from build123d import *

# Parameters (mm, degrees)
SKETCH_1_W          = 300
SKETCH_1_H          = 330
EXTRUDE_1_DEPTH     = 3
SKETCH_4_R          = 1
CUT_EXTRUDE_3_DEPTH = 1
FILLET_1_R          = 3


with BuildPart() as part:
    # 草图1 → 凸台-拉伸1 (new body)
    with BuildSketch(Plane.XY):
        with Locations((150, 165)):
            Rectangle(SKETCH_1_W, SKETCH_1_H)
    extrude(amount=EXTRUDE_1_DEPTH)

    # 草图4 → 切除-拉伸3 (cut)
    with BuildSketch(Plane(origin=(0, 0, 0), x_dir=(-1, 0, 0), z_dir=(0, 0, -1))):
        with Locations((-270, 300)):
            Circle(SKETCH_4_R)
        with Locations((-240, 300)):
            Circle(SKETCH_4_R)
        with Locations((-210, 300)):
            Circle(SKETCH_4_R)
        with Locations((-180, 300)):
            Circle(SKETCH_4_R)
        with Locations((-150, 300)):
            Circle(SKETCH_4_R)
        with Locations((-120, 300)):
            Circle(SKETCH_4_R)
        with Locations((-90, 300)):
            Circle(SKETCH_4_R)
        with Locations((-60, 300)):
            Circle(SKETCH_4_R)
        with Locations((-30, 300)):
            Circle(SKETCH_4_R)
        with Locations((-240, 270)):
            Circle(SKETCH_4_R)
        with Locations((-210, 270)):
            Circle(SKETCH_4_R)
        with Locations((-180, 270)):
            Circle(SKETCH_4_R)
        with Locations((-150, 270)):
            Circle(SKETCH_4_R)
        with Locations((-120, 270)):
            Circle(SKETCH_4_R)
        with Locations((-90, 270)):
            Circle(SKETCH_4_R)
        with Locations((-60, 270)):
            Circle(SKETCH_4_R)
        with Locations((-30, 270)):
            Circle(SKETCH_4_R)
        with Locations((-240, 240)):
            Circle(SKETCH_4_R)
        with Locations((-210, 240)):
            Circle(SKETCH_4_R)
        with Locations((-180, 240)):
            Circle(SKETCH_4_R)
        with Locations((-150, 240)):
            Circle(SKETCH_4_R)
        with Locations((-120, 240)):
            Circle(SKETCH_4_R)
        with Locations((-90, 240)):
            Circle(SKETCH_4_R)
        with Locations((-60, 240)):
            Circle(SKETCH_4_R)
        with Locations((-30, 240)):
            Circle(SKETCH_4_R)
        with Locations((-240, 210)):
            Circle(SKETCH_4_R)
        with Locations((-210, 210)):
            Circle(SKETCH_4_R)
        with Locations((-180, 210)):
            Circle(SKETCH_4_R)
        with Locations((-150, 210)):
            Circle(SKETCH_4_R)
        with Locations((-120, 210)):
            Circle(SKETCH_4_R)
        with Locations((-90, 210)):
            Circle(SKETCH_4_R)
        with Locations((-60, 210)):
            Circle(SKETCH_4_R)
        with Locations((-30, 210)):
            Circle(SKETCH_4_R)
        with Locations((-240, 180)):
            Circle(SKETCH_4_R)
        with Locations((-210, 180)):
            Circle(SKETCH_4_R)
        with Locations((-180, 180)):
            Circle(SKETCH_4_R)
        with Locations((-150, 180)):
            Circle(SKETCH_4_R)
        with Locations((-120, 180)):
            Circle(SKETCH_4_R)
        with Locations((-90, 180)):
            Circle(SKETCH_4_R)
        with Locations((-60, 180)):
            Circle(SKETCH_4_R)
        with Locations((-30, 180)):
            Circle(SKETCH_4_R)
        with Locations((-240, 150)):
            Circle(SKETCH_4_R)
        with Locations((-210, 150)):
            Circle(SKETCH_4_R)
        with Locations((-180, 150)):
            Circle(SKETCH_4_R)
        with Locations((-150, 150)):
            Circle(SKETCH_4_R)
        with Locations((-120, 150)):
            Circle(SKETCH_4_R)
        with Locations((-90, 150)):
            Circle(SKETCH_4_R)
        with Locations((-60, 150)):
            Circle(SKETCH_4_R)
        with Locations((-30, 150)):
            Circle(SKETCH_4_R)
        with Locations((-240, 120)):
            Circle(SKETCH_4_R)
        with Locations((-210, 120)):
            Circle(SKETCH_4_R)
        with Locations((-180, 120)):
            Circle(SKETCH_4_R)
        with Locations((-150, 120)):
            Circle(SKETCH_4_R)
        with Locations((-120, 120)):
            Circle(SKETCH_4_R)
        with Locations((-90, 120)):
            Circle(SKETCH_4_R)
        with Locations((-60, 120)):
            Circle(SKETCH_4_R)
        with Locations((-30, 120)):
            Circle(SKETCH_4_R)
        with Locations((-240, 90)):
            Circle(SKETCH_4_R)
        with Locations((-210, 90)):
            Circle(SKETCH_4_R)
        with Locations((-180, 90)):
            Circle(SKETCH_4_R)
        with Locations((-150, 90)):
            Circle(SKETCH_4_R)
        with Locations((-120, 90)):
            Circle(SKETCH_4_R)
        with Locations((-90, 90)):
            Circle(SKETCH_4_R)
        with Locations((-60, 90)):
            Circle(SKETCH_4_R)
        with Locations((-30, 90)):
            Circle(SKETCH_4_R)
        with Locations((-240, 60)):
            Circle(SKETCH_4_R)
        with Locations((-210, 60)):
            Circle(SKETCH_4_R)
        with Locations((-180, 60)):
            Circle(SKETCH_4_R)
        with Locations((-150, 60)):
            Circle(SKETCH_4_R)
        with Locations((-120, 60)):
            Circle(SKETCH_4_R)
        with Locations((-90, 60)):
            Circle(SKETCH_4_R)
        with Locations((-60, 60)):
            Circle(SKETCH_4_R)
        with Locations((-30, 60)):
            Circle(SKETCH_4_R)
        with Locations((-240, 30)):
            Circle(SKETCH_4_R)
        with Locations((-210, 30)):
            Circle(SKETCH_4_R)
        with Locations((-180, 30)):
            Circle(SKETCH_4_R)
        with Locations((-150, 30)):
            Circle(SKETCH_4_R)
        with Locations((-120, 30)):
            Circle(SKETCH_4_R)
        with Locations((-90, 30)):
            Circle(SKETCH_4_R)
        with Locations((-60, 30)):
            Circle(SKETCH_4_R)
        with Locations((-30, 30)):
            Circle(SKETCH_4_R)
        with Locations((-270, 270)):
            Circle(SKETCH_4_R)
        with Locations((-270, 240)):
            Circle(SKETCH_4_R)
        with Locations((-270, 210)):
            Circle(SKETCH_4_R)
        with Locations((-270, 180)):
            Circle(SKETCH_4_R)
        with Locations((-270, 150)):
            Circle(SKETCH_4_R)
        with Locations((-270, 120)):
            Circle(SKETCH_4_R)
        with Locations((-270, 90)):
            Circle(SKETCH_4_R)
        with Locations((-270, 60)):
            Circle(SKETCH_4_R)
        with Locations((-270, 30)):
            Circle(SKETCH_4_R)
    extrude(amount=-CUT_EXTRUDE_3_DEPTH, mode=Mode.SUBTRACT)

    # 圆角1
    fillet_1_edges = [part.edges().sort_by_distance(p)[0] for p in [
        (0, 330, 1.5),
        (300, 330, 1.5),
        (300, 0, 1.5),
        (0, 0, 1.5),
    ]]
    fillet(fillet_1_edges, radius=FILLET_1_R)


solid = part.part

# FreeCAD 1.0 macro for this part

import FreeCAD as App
import Part
import Sketcher

V = App.Vector
Q = App.Units.Quantity


def edges_at(feature, points):
    """Names of the edges that pass closest to the given points."""
    edges = feature.Shape.Edges
    near = lambda p: min(range(len(edges)), key=lambda i: edges[i].distToShape(Part.Vertex(*p))[0])
    return sorted({f"Edge{near(p) + 1}" for p in points})

doc = App.newDocument("Part")
params = doc.addObject("Spreadsheet::Sheet", "Params")
for row, (alias, value) in enumerate([
    ("sketch1_width", "300 mm"),
    ("sketch1_height", "330 mm"),
    ("pad1_length", "3 mm"),
    ("sketch2_diameter", "2 mm"),
    ("pocket1_length", "1 mm"),
    ("fillet_radius", "3 mm"),
], start=1):
    params.set(f"A{row}", alias)
    params.set(f"B{row}", "=" + value)
    params.setAlias(f"B{row}", alias)

body = doc.addObject("PartDesign::Body", "Body")

sketch1 = body.newObject("Sketcher::SketchObject", "Sketch")
sketch1.AttachmentSupport = (doc.getObject("XY_Plane"), [""])
sketch1.MapMode = "FlatFace"
sketch1.addGeometry([
    Part.LineSegment(V(0, 330, 0), V(0, 0, 0)),
    Part.LineSegment(V(0, 0, 0), V(300, 0, 0)),
    Part.LineSegment(V(300, 0, 0), V(300, 330, 0)),
    Part.LineSegment(V(300, 330, 0), V(0, 330, 0)),
], False)
sketch1.addConstraint([
    Sketcher.Constraint("Coincident", 0, 2, 1, 1),
    Sketcher.Constraint("Coincident", 1, 2, 2, 1),
    Sketcher.Constraint("Coincident", 2, 2, 3, 1),
    Sketcher.Constraint("Coincident", 3, 2, 0, 1),
    Sketcher.Constraint("Vertical", 0),
    Sketcher.Constraint("Horizontal", 1),
    Sketcher.Constraint("Vertical", 2),
    Sketcher.Constraint("Horizontal", 3),
    Sketcher.Constraint("Coincident", 0, 2, -1, 1),
    Sketcher.Constraint("DistanceX", 1, 1, 1, 2, Q("300 mm")),
    Sketcher.Constraint("DistanceY", 0, 2, 0, 1, Q("330 mm")),
])
sketch1.setExpression("Constraints[9]", "Params.sketch1_width")
sketch1.setExpression("Constraints[10]", "Params.sketch1_height")
pad1 = body.newObject("PartDesign::Pad", "Pad")
pad1.Profile = sketch1
pad1.setExpression("Length", "Params.pad1_length")

sketch2 = body.newObject("Sketcher::SketchObject", "Sketch001")
sketch2.AttachmentSupport = (doc.getObject("XY_Plane"), [""])
sketch2.MapMode = "FlatFace"
sketch2.addGeometry([
    Part.Circle(V(270, 300, 0), V(0, 0, 1), 1),
    Part.Circle(V(240, 300, 0), V(0, 0, 1), 1),
    Part.Circle(V(210, 300, 0), V(0, 0, 1), 1),
    Part.Circle(V(180, 300, 0), V(0, 0, 1), 1),
    Part.Circle(V(150, 300, 0), V(0, 0, 1), 1),
    Part.Circle(V(120, 300, 0), V(0, 0, 1), 1),
    Part.Circle(V(90, 300, 0), V(0, 0, 1), 1),
    Part.Circle(V(60, 300, 0), V(0, 0, 1), 1),
    Part.Circle(V(30, 300, 0), V(0, 0, 1), 1),
    Part.Circle(V(240, 270, 0), V(0, 0, 1), 1),
    Part.Circle(V(210, 270, 0), V(0, 0, 1), 1),
    Part.Circle(V(180, 270, 0), V(0, 0, 1), 1),
    Part.Circle(V(150, 270, 0), V(0, 0, 1), 1),
    Part.Circle(V(120, 270, 0), V(0, 0, 1), 1),
    Part.Circle(V(90, 270, 0), V(0, 0, 1), 1),
    Part.Circle(V(60, 270, 0), V(0, 0, 1), 1),
    Part.Circle(V(30, 270, 0), V(0, 0, 1), 1),
    Part.Circle(V(240, 240, 0), V(0, 0, 1), 1),
    Part.Circle(V(210, 240, 0), V(0, 0, 1), 1),
    Part.Circle(V(180, 240, 0), V(0, 0, 1), 1),
    Part.Circle(V(150, 240, 0), V(0, 0, 1), 1),
    Part.Circle(V(120, 240, 0), V(0, 0, 1), 1),
    Part.Circle(V(90, 240, 0), V(0, 0, 1), 1),
    Part.Circle(V(60, 240, 0), V(0, 0, 1), 1),
    Part.Circle(V(30, 240, 0), V(0, 0, 1), 1),
    Part.Circle(V(240, 210, 0), V(0, 0, 1), 1),
    Part.Circle(V(210, 210, 0), V(0, 0, 1), 1),
    Part.Circle(V(180, 210, 0), V(0, 0, 1), 1),
    Part.Circle(V(150, 210, 0), V(0, 0, 1), 1),
    Part.Circle(V(120, 210, 0), V(0, 0, 1), 1),
    Part.Circle(V(90, 210, 0), V(0, 0, 1), 1),
    Part.Circle(V(60, 210, 0), V(0, 0, 1), 1),
    Part.Circle(V(30, 210, 0), V(0, 0, 1), 1),
    Part.Circle(V(240, 180, 0), V(0, 0, 1), 1),
    Part.Circle(V(210, 180, 0), V(0, 0, 1), 1),
    Part.Circle(V(180, 180, 0), V(0, 0, 1), 1),
    Part.Circle(V(150, 180, 0), V(0, 0, 1), 1),
    Part.Circle(V(120, 180, 0), V(0, 0, 1), 1),
    Part.Circle(V(90, 180, 0), V(0, 0, 1), 1),
    Part.Circle(V(60, 180, 0), V(0, 0, 1), 1),
    Part.Circle(V(30, 180, 0), V(0, 0, 1), 1),
    Part.Circle(V(240, 150, 0), V(0, 0, 1), 1),
    Part.Circle(V(210, 150, 0), V(0, 0, 1), 1),
    Part.Circle(V(180, 150, 0), V(0, 0, 1), 1),
    Part.Circle(V(150, 150, 0), V(0, 0, 1), 1),
    Part.Circle(V(120, 150, 0), V(0, 0, 1), 1),
    Part.Circle(V(90, 150, 0), V(0, 0, 1), 1),
    Part.Circle(V(60, 150, 0), V(0, 0, 1), 1),
    Part.Circle(V(30, 150, 0), V(0, 0, 1), 1),
    Part.Circle(V(240, 120, 0), V(0, 0, 1), 1),
    Part.Circle(V(210, 120, 0), V(0, 0, 1), 1),
    Part.Circle(V(180, 120, 0), V(0, 0, 1), 1),
    Part.Circle(V(150, 120, 0), V(0, 0, 1), 1),
    Part.Circle(V(120, 120, 0), V(0, 0, 1), 1),
    Part.Circle(V(90, 120, 0), V(0, 0, 1), 1),
    Part.Circle(V(60, 120, 0), V(0, 0, 1), 1),
    Part.Circle(V(30, 120, 0), V(0, 0, 1), 1),
    Part.Circle(V(240, 90, 0), V(0, 0, 1), 1),
    Part.Circle(V(210, 90, 0), V(0, 0, 1), 1),
    Part.Circle(V(180, 90, 0), V(0, 0, 1), 1),
    Part.Circle(V(150, 90, 0), V(0, 0, 1), 1),
    Part.Circle(V(120, 90, 0), V(0, 0, 1), 1),
    Part.Circle(V(90, 90, 0), V(0, 0, 1), 1),
    Part.Circle(V(60, 90, 0), V(0, 0, 1), 1),
    Part.Circle(V(30, 90, 0), V(0, 0, 1), 1),
    Part.Circle(V(240, 60, 0), V(0, 0, 1), 1),
    Part.Circle(V(210, 60, 0), V(0, 0, 1), 1),
    Part.Circle(V(180, 60, 0), V(0, 0, 1), 1),
    Part.Circle(V(150, 60, 0), V(0, 0, 1), 1),
    Part.Circle(V(120, 60, 0), V(0, 0, 1), 1),
    Part.Circle(V(90, 60, 0), V(0, 0, 1), 1),
    Part.Circle(V(60, 60, 0), V(0, 0, 1), 1),
    Part.Circle(V(30, 60, 0), V(0, 0, 1), 1),
    Part.Circle(V(240, 30, 0), V(0, 0, 1), 1),
    Part.Circle(V(210, 30, 0), V(0, 0, 1), 1),
    Part.Circle(V(180, 30, 0), V(0, 0, 1), 1),
    Part.Circle(V(150, 30, 0), V(0, 0, 1), 1),
    Part.Circle(V(120, 30, 0), V(0, 0, 1), 1),
    Part.Circle(V(90, 30, 0), V(0, 0, 1), 1),
    Part.Circle(V(60, 30, 0), V(0, 0, 1), 1),
    Part.Circle(V(30, 30, 0), V(0, 0, 1), 1),
    Part.Circle(V(270, 270, 0), V(0, 0, 1), 1),
    Part.Circle(V(270, 240, 0), V(0, 0, 1), 1),
    Part.Circle(V(270, 210, 0), V(0, 0, 1), 1),
    Part.Circle(V(270, 180, 0), V(0, 0, 1), 1),
    Part.Circle(V(270, 150, 0), V(0, 0, 1), 1),
    Part.Circle(V(270, 120, 0), V(0, 0, 1), 1),
    Part.Circle(V(270, 90, 0), V(0, 0, 1), 1),
    Part.Circle(V(270, 60, 0), V(0, 0, 1), 1),
    Part.Circle(V(270, 30, 0), V(0, 0, 1), 1),
], False)
sketch2.addConstraint([
    Sketcher.Constraint("Equal", 0, 1),
    Sketcher.Constraint("Equal", 1, 2),
    Sketcher.Constraint("Equal", 2, 3),
    Sketcher.Constraint("Equal", 3, 4),
    Sketcher.Constraint("Equal", 4, 5),
    Sketcher.Constraint("Equal", 5, 6),
    Sketcher.Constraint("Equal", 6, 7),
    Sketcher.Constraint("Equal", 7, 8),
    Sketcher.Constraint("Equal", 8, 9),
    Sketcher.Constraint("Equal", 9, 10),
    Sketcher.Constraint("Equal", 10, 11),
    Sketcher.Constraint("Equal", 11, 12),
    Sketcher.Constraint("Equal", 12, 13),
    Sketcher.Constraint("Equal", 13, 14),
    Sketcher.Constraint("Equal", 14, 15),
    Sketcher.Constraint("Equal", 15, 16),
    Sketcher.Constraint("Equal", 16, 17),
    Sketcher.Constraint("Equal", 17, 18),
    Sketcher.Constraint("Equal", 18, 19),
    Sketcher.Constraint("Equal", 19, 20),
    Sketcher.Constraint("Equal", 20, 21),
    Sketcher.Constraint("Equal", 21, 22),
    Sketcher.Constraint("Equal", 22, 23),
    Sketcher.Constraint("Equal", 23, 24),
    Sketcher.Constraint("Equal", 24, 25),
    Sketcher.Constraint("Equal", 25, 26),
    Sketcher.Constraint("Equal", 26, 27),
    Sketcher.Constraint("Equal", 27, 28),
    Sketcher.Constraint("Equal", 28, 29),
    Sketcher.Constraint("Equal", 29, 30),
    Sketcher.Constraint("Equal", 30, 31),
    Sketcher.Constraint("Equal", 31, 32),
    Sketcher.Constraint("Equal", 32, 33),
    Sketcher.Constraint("Equal", 33, 34),
    Sketcher.Constraint("Equal", 34, 35),
    Sketcher.Constraint("Equal", 35, 36),
    Sketcher.Constraint("Equal", 36, 37),
    Sketcher.Constraint("Equal", 37, 38),
    Sketcher.Constraint("Equal", 38, 39),
    Sketcher.Constraint("Equal", 39, 40),
    Sketcher.Constraint("Equal", 40, 41),
    Sketcher.Constraint("Equal", 41, 42),
    Sketcher.Constraint("Equal", 42, 43),
    Sketcher.Constraint("Equal", 43, 44),
    Sketcher.Constraint("Equal", 44, 45),
    Sketcher.Constraint("Equal", 45, 46),
    Sketcher.Constraint("Equal", 46, 47),
    Sketcher.Constraint("Equal", 47, 48),
    Sketcher.Constraint("Equal", 48, 49),
    Sketcher.Constraint("Equal", 49, 50),
    Sketcher.Constraint("Equal", 50, 51),
    Sketcher.Constraint("Equal", 51, 52),
    Sketcher.Constraint("Equal", 52, 53),
    Sketcher.Constraint("Equal", 53, 54),
    Sketcher.Constraint("Equal", 54, 55),
    Sketcher.Constraint("Equal", 55, 56),
    Sketcher.Constraint("Equal", 56, 57),
    Sketcher.Constraint("Equal", 57, 58),
    Sketcher.Constraint("Equal", 58, 59),
    Sketcher.Constraint("Equal", 59, 60),
    Sketcher.Constraint("Equal", 60, 61),
    Sketcher.Constraint("Equal", 61, 62),
    Sketcher.Constraint("Equal", 62, 63),
    Sketcher.Constraint("Equal", 63, 64),
    Sketcher.Constraint("Equal", 64, 65),
    Sketcher.Constraint("Equal", 65, 66),
    Sketcher.Constraint("Equal", 66, 67),
    Sketcher.Constraint("Equal", 67, 68),
    Sketcher.Constraint("Equal", 68, 69),
    Sketcher.Constraint("Equal", 69, 70),
    Sketcher.Constraint("Equal", 70, 71),
    Sketcher.Constraint("Equal", 71, 72),
    Sketcher.Constraint("Equal", 72, 73),
    Sketcher.Constraint("Equal", 73, 74),
    Sketcher.Constraint("Equal", 74, 75),
    Sketcher.Constraint("Equal", 75, 76),
    Sketcher.Constraint("Equal", 76, 77),
    Sketcher.Constraint("Equal", 77, 78),
    Sketcher.Constraint("Equal", 78, 79),
    Sketcher.Constraint("Equal", 79, 80),
    Sketcher.Constraint("Equal", 80, 81),
    Sketcher.Constraint("Equal", 81, 82),
    Sketcher.Constraint("Equal", 82, 83),
    Sketcher.Constraint("Equal", 83, 84),
    Sketcher.Constraint("Equal", 84, 85),
    Sketcher.Constraint("Equal", 85, 86),
    Sketcher.Constraint("Equal", 86, 87),
    Sketcher.Constraint("Equal", 87, 88),
    Sketcher.Constraint("Equal", 88, 89),
    Sketcher.Constraint("Horizontal", 0, 3, 1, 3),
    Sketcher.Constraint("Horizontal", 1, 3, 2, 3),
    Sketcher.Constraint("Horizontal", 2, 3, 3, 3),
    Sketcher.Constraint("Horizontal", 3, 3, 4, 3),
    Sketcher.Constraint("Horizontal", 4, 3, 5, 3),
    Sketcher.Constraint("Horizontal", 5, 3, 6, 3),
    Sketcher.Constraint("Horizontal", 6, 3, 7, 3),
    Sketcher.Constraint("Horizontal", 7, 3, 8, 3),
    Sketcher.Constraint("Horizontal", 9, 3, 10, 3),
    Sketcher.Constraint("Horizontal", 10, 3, 11, 3),
    Sketcher.Constraint("Horizontal", 11, 3, 12, 3),
    Sketcher.Constraint("Horizontal", 12, 3, 13, 3),
    Sketcher.Constraint("Horizontal", 13, 3, 14, 3),
    Sketcher.Constraint("Horizontal", 14, 3, 15, 3),
    Sketcher.Constraint("Horizontal", 15, 3, 16, 3),
    Sketcher.Constraint("Horizontal", 17, 3, 18, 3),
    Sketcher.Constraint("Horizontal", 18, 3, 19, 3),
    Sketcher.Constraint("Horizontal", 19, 3, 20, 3),
    Sketcher.Constraint("Horizontal", 20, 3, 21, 3),
    Sketcher.Constraint("Horizontal", 21, 3, 22, 3),
    Sketcher.Constraint("Horizontal", 22, 3, 23, 3),
    Sketcher.Constraint("Horizontal", 23, 3, 24, 3),
    Sketcher.Constraint("Horizontal", 25, 3, 26, 3),
    Sketcher.Constraint("Horizontal", 26, 3, 27, 3),
    Sketcher.Constraint("Horizontal", 27, 3, 28, 3),
    Sketcher.Constraint("Horizontal", 28, 3, 29, 3),
    Sketcher.Constraint("Horizontal", 29, 3, 30, 3),
    Sketcher.Constraint("Horizontal", 30, 3, 31, 3),
    Sketcher.Constraint("Horizontal", 31, 3, 32, 3),
    Sketcher.Constraint("Horizontal", 33, 3, 34, 3),
    Sketcher.Constraint("Horizontal", 34, 3, 35, 3),
    Sketcher.Constraint("Horizontal", 35, 3, 36, 3),
    Sketcher.Constraint("Horizontal", 36, 3, 37, 3),
    Sketcher.Constraint("Horizontal", 37, 3, 38, 3),
    Sketcher.Constraint("Horizontal", 38, 3, 39, 3),
    Sketcher.Constraint("Horizontal", 39, 3, 40, 3),
    Sketcher.Constraint("Horizontal", 41, 3, 42, 3),
    Sketcher.Constraint("Horizontal", 42, 3, 43, 3),
    Sketcher.Constraint("Horizontal", 43, 3, 44, 3),
    Sketcher.Constraint("Horizontal", 44, 3, 45, 3),
    Sketcher.Constraint("Horizontal", 45, 3, 46, 3),
    Sketcher.Constraint("Horizontal", 46, 3, 47, 3),
    Sketcher.Constraint("Horizontal", 47, 3, 48, 3),
    Sketcher.Constraint("Horizontal", 49, 3, 50, 3),
    Sketcher.Constraint("Horizontal", 50, 3, 51, 3),
    Sketcher.Constraint("Horizontal", 51, 3, 52, 3),
    Sketcher.Constraint("Horizontal", 52, 3, 53, 3),
    Sketcher.Constraint("Horizontal", 53, 3, 54, 3),
    Sketcher.Constraint("Horizontal", 54, 3, 55, 3),
    Sketcher.Constraint("Horizontal", 55, 3, 56, 3),
    Sketcher.Constraint("Horizontal", 57, 3, 58, 3),
    Sketcher.Constraint("Horizontal", 58, 3, 59, 3),
    Sketcher.Constraint("Horizontal", 59, 3, 60, 3),
    Sketcher.Constraint("Horizontal", 60, 3, 61, 3),
    Sketcher.Constraint("Horizontal", 61, 3, 62, 3),
    Sketcher.Constraint("Horizontal", 62, 3, 63, 3),
    Sketcher.Constraint("Horizontal", 63, 3, 64, 3),
    Sketcher.Constraint("Horizontal", 65, 3, 66, 3),
    Sketcher.Constraint("Horizontal", 66, 3, 67, 3),
    Sketcher.Constraint("Horizontal", 67, 3, 68, 3),
    Sketcher.Constraint("Horizontal", 68, 3, 69, 3),
    Sketcher.Constraint("Horizontal", 69, 3, 70, 3),
    Sketcher.Constraint("Horizontal", 70, 3, 71, 3),
    Sketcher.Constraint("Horizontal", 71, 3, 72, 3),
    Sketcher.Constraint("Horizontal", 73, 3, 74, 3),
    Sketcher.Constraint("Horizontal", 74, 3, 75, 3),
    Sketcher.Constraint("Horizontal", 75, 3, 76, 3),
    Sketcher.Constraint("Horizontal", 76, 3, 77, 3),
    Sketcher.Constraint("Horizontal", 77, 3, 78, 3),
    Sketcher.Constraint("Horizontal", 78, 3, 79, 3),
    Sketcher.Constraint("Horizontal", 79, 3, 80, 3),
    Sketcher.Constraint("Horizontal", 16, 3, 81, 3),
    Sketcher.Constraint("Horizontal", 24, 3, 82, 3),
    Sketcher.Constraint("Horizontal", 32, 3, 83, 3),
    Sketcher.Constraint("Horizontal", 40, 3, 84, 3),
    Sketcher.Constraint("Horizontal", 48, 3, 85, 3),
    Sketcher.Constraint("Horizontal", 56, 3, 86, 3),
    Sketcher.Constraint("Horizontal", 64, 3, 87, 3),
    Sketcher.Constraint("Horizontal", 72, 3, 88, 3),
    Sketcher.Constraint("Horizontal", 80, 3, 89, 3),
    Sketcher.Constraint("Vertical", 1, 3, 9, 3),
    Sketcher.Constraint("Vertical", 2, 3, 10, 3),
    Sketcher.Constraint("Vertical", 3, 3, 11, 3),
    Sketcher.Constraint("Vertical", 4, 3, 12, 3),
    Sketcher.Constraint("Vertical", 5, 3, 13, 3),
    Sketcher.Constraint("Vertical", 6, 3, 14, 3),
    Sketcher.Constraint("Vertical", 7, 3, 15, 3),
    Sketcher.Constraint("Vertical", 8, 3, 16, 3),
    Sketcher.Constraint("Vertical", 9, 3, 17, 3),
    Sketcher.Constraint("Vertical", 10, 3, 18, 3),
    Sketcher.Constraint("Vertical", 11, 3, 19, 3),
    Sketcher.Constraint("Vertical", 12, 3, 20, 3),
    Sketcher.Constraint("Vertical", 13, 3, 21, 3),
    Sketcher.Constraint("Vertical", 14, 3, 22, 3),
    Sketcher.Constraint("Vertical", 15, 3, 23, 3),
    Sketcher.Constraint("Vertical", 16, 3, 24, 3),
    Sketcher.Constraint("Vertical", 17, 3, 25, 3),
    Sketcher.Constraint("Vertical", 18, 3, 26, 3),
    Sketcher.Constraint("Vertical", 19, 3, 27, 3),
    Sketcher.Constraint("Vertical", 20, 3, 28, 3),
    Sketcher.Constraint("Vertical", 21, 3, 29, 3),
    Sketcher.Constraint("Vertical", 22, 3, 30, 3),
    Sketcher.Constraint("Vertical", 23, 3, 31, 3),
    Sketcher.Constraint("Vertical", 24, 3, 32, 3),
    Sketcher.Constraint("Vertical", 25, 3, 33, 3),
    Sketcher.Constraint("Vertical", 26, 3, 34, 3),
    Sketcher.Constraint("Vertical", 27, 3, 35, 3),
    Sketcher.Constraint("Vertical", 28, 3, 36, 3),
    Sketcher.Constraint("Vertical", 29, 3, 37, 3),
    Sketcher.Constraint("Vertical", 30, 3, 38, 3),
    Sketcher.Constraint("Vertical", 31, 3, 39, 3),
    Sketcher.Constraint("Vertical", 32, 3, 40, 3),
    Sketcher.Constraint("Vertical", 33, 3, 41, 3),
    Sketcher.Constraint("Vertical", 34, 3, 42, 3),
    Sketcher.Constraint("Vertical", 35, 3, 43, 3),
    Sketcher.Constraint("Vertical", 36, 3, 44, 3),
    Sketcher.Constraint("Vertical", 37, 3, 45, 3),
    Sketcher.Constraint("Vertical", 38, 3, 46, 3),
    Sketcher.Constraint("Vertical", 39, 3, 47, 3),
    Sketcher.Constraint("Vertical", 40, 3, 48, 3),
    Sketcher.Constraint("Vertical", 41, 3, 49, 3),
    Sketcher.Constraint("Vertical", 42, 3, 50, 3),
    Sketcher.Constraint("Vertical", 43, 3, 51, 3),
    Sketcher.Constraint("Vertical", 44, 3, 52, 3),
    Sketcher.Constraint("Vertical", 45, 3, 53, 3),
    Sketcher.Constraint("Vertical", 46, 3, 54, 3),
    Sketcher.Constraint("Vertical", 47, 3, 55, 3),
    Sketcher.Constraint("Vertical", 48, 3, 56, 3),
    Sketcher.Constraint("Vertical", 49, 3, 57, 3),
    Sketcher.Constraint("Vertical", 50, 3, 58, 3),
    Sketcher.Constraint("Vertical", 51, 3, 59, 3),
    Sketcher.Constraint("Vertical", 52, 3, 60, 3),
    Sketcher.Constraint("Vertical", 53, 3, 61, 3),
    Sketcher.Constraint("Vertical", 54, 3, 62, 3),
    Sketcher.Constraint("Vertical", 55, 3, 63, 3),
    Sketcher.Constraint("Vertical", 56, 3, 64, 3),
    Sketcher.Constraint("Vertical", 57, 3, 65, 3),
    Sketcher.Constraint("Vertical", 58, 3, 66, 3),
    Sketcher.Constraint("Vertical", 59, 3, 67, 3),
    Sketcher.Constraint("Vertical", 60, 3, 68, 3),
    Sketcher.Constraint("Vertical", 61, 3, 69, 3),
    Sketcher.Constraint("Vertical", 62, 3, 70, 3),
    Sketcher.Constraint("Vertical", 63, 3, 71, 3),
    Sketcher.Constraint("Vertical", 64, 3, 72, 3),
    Sketcher.Constraint("Vertical", 65, 3, 73, 3),
    Sketcher.Constraint("Vertical", 66, 3, 74, 3),
    Sketcher.Constraint("Vertical", 67, 3, 75, 3),
    Sketcher.Constraint("Vertical", 68, 3, 76, 3),
    Sketcher.Constraint("Vertical", 69, 3, 77, 3),
    Sketcher.Constraint("Vertical", 70, 3, 78, 3),
    Sketcher.Constraint("Vertical", 71, 3, 79, 3),
    Sketcher.Constraint("Vertical", 72, 3, 80, 3),
    Sketcher.Constraint("Vertical", 0, 3, 81, 3),
    Sketcher.Constraint("Vertical", 81, 3, 82, 3),
    Sketcher.Constraint("Vertical", 82, 3, 83, 3),
    Sketcher.Constraint("Vertical", 83, 3, 84, 3),
    Sketcher.Constraint("Vertical", 84, 3, 85, 3),
    Sketcher.Constraint("Vertical", 85, 3, 86, 3),
    Sketcher.Constraint("Vertical", 86, 3, 87, 3),
    Sketcher.Constraint("Vertical", 87, 3, 88, 3),
    Sketcher.Constraint("Vertical", 88, 3, 89, 3),
    Sketcher.Constraint("Diameter", 0, Q("2 mm")),
    Sketcher.Constraint("DistanceX", -1, 1, 0, 3, Q("270 mm")),
    Sketcher.Constraint("DistanceY", -1, 1, 0, 3, Q("300 mm")),
    Sketcher.Constraint("DistanceX", -1, 1, 1, 3, Q("240 mm")),
    Sketcher.Constraint("DistanceX", -1, 1, 2, 3, Q("210 mm")),
    Sketcher.Constraint("DistanceX", -1, 1, 3, 3, Q("180 mm")),
    Sketcher.Constraint("DistanceX", -1, 1, 4, 3, Q("150 mm")),
    Sketcher.Constraint("DistanceX", -1, 1, 5, 3, Q("120 mm")),
    Sketcher.Constraint("DistanceX", -1, 1, 6, 3, Q("90 mm")),
    Sketcher.Constraint("DistanceX", -1, 1, 7, 3, Q("60 mm")),
    Sketcher.Constraint("DistanceX", -1, 1, 8, 3, Q("30 mm")),
    Sketcher.Constraint("DistanceY", -1, 1, 9, 3, Q("270 mm")),
    Sketcher.Constraint("DistanceY", -1, 1, 17, 3, Q("240 mm")),
    Sketcher.Constraint("DistanceY", -1, 1, 25, 3, Q("210 mm")),
    Sketcher.Constraint("DistanceY", -1, 1, 33, 3, Q("180 mm")),
    Sketcher.Constraint("DistanceY", -1, 1, 41, 3, Q("150 mm")),
    Sketcher.Constraint("DistanceY", -1, 1, 49, 3, Q("120 mm")),
    Sketcher.Constraint("DistanceY", -1, 1, 57, 3, Q("90 mm")),
    Sketcher.Constraint("DistanceY", -1, 1, 65, 3, Q("60 mm")),
    Sketcher.Constraint("DistanceY", -1, 1, 73, 3, Q("30 mm")),
])
sketch2.setExpression("Constraints[250]", "Params.sketch2_diameter")
pocket1 = body.newObject("PartDesign::Pocket", "Pocket")
pocket1.Profile = sketch2
pocket1.setExpression("Length", "Params.pocket1_length")
pocket1.Reversed = True
doc.recompute()

fillet = body.newObject("PartDesign::Fillet", "Fillet")
fillet.Base = (pocket1, edges_at(pocket1, [
    (0, 330, 1.5),
    (300, 330, 1.5),
    (300, 0, 1.5),
    (0, 0, 1.5),
]))
fillet.setExpression("Radius", "Params.fillet_radius")

doc.recompute()
